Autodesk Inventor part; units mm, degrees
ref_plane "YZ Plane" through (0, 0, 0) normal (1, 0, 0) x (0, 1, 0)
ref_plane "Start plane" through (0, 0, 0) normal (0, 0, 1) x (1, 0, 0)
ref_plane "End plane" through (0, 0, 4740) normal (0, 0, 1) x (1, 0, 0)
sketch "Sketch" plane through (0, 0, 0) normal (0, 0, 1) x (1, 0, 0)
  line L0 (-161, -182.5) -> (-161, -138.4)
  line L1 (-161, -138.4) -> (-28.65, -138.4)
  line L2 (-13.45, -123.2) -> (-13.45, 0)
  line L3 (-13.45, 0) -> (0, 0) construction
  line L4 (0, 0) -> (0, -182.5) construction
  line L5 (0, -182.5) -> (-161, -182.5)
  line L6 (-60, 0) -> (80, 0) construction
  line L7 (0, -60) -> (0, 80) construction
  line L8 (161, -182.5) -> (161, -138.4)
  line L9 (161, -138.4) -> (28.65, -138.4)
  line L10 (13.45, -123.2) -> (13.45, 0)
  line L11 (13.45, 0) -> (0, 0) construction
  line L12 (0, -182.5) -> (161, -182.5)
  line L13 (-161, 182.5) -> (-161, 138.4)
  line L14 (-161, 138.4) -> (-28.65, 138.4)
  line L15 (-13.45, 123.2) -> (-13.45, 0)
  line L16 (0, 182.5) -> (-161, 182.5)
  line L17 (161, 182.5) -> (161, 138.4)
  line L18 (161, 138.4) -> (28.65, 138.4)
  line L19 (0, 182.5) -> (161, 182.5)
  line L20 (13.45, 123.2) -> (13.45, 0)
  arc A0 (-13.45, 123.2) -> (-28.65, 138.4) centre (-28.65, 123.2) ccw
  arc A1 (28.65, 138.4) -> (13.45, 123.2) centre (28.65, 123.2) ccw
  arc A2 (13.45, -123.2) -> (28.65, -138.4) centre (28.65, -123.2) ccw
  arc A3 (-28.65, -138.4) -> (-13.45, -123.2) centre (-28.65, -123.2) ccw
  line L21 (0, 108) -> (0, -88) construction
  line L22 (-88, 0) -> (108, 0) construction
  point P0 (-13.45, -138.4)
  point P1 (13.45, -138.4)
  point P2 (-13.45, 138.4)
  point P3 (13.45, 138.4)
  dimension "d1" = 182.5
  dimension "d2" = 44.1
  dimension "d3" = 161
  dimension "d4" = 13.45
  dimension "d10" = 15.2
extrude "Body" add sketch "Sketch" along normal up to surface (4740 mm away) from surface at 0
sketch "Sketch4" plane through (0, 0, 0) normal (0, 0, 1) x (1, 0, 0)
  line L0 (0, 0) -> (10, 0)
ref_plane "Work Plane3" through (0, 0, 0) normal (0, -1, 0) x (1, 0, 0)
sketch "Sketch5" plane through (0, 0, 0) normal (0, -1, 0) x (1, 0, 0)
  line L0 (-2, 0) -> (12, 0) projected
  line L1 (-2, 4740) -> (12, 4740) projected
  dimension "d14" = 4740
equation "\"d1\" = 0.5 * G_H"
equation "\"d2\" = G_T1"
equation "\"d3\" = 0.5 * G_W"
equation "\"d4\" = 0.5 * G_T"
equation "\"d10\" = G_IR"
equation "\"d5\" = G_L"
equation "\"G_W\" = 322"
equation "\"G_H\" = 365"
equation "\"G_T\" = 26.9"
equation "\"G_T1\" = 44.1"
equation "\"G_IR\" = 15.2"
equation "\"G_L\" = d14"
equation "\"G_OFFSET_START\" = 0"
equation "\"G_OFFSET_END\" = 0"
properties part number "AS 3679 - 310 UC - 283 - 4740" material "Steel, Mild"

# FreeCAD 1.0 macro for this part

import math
import FreeCAD as App
import Part
import Sketcher

V = App.Vector

doc = App.newDocument("Part")
params = doc.addObject("Spreadsheet::Sheet", "Params")
for row, (alias, value) in enumerate([
    ("sketch1_radius", "15.2 mm"),
    ("sketch1_height", "44.1 mm"),
    ("pad1_length", "4740 mm"),
], start=1):
    params.set(f"A{row}", alias)
    params.set(f"B{row}", "=" + value)
    params.setAlias(f"B{row}", alias)

body = doc.addObject("PartDesign::Body", "Body")

# Sketch on XY plane
sketch1 = body.newObject("Sketcher::SketchObject", "Sketch")
sketch1.AttachmentSupport = (doc.getObject("XY_Plane"), [""])
sketch1.MapMode = "FlatFace"
sketch1.addGeometry(Part.LineSegment(V(-161, -138, 0), V(-161, -182, 0)), False)
sketch1.addGeometry(Part.LineSegment(V(-161, -182, 0), V(161, -182, 0)), False)
sketch1.addGeometry(Part.LineSegment(V(161, -182, 0), V(161, -138, 0)), False)
sketch1.addGeometry(Part.LineSegment(V(161, -138, 0), V(29, -138, 0)), False)
sketch1.addGeometry(Part.ArcOfCircle(Part.Circle(V(29, -123, 0), V(0, 0, 1), 15), math.radians(180), math.radians(270)), False)
sketch1.addGeometry(Part.LineSegment(V(13, -123, 0), V(13, 123, 0)), False)
sketch1.addGeometry(Part.ArcOfCircle(Part.Circle(V(29, 123, 0), V(0, 0, 1), 15), math.radians(90), math.radians(180)), False)
sketch1.addGeometry(Part.LineSegment(V(29, 138, 0), V(161, 138, 0)), False)
sketch1.addGeometry(Part.LineSegment(V(161, 138, 0), V(161, 182, 0)), False)
sketch1.addGeometry(Part.LineSegment(V(161, 182, 0), V(-161, 182, 0)), False)
sketch1.addGeometry(Part.LineSegment(V(-161, 182, 0), V(-161, 138, 0)), False)
sketch1.addGeometry(Part.LineSegment(V(-161, 138, 0), V(-29, 138, 0)), False)
sketch1.addGeometry(Part.ArcOfCircle(Part.Circle(V(-29, 123, 0), V(0, 0, 1), 15), math.radians(0), math.radians(90)), False)
sketch1.addGeometry(Part.LineSegment(V(-13, 123, 0), V(-13, -123, 0)), False)
sketch1.addGeometry(Part.ArcOfCircle(Part.Circle(V(-29, -123, 0), V(0, 0, 1), 15), math.radians(-90), math.radians(0)), False)
sketch1.addGeometry(Part.LineSegment(V(-29, -138, 0), V(-161, -138, 0)), False)
sketch1.addConstraint(Sketcher.Constraint("Coincident", 0, 2, 1, 1))
sketch1.addConstraint(Sketcher.Constraint("Coincident", 1, 2, 2, 1))
sketch1.addConstraint(Sketcher.Constraint("Coincident", 2, 2, 3, 1))
sketch1.addConstraint(Sketcher.Constraint("Tangent", 3, 2, 4, 2))
sketch1.addConstraint(Sketcher.Constraint("Tangent", 4, 1, 5, 1))
sketch1.addConstraint(Sketcher.Constraint("Tangent", 5, 2, 6, 2))
sketch1.addConstraint(Sketcher.Constraint("Tangent", 6, 1, 7, 1))
sketch1.addConstraint(Sketcher.Constraint("Coincident", 7, 2, 8, 1))
sketch1.addConstraint(Sketcher.Constraint("Coincident", 8, 2, 9, 1))
sketch1.addConstraint(Sketcher.Constraint("Coincident", 9, 2, 10, 1))
sketch1.addConstraint(Sketcher.Constraint("Coincident", 10, 2, 11, 1))
sketch1.addConstraint(Sketcher.Constraint("Tangent", 11, 2, 12, 2))
sketch1.addConstraint(Sketcher.Constraint("Tangent", 12, 1, 13, 1))
sketch1.addConstraint(Sketcher.Constraint("Tangent", 13, 2, 14, 2))
sketch1.addConstraint(Sketcher.Constraint("Tangent", 14, 1, 15, 1))
sketch1.addConstraint(Sketcher.Constraint("Coincident", 15, 2, 0, 1))
sketch1.addConstraint(Sketcher.Constraint("Vertical", 0))
sketch1.addConstraint(Sketcher.Constraint("Horizontal", 1))
sketch1.addConstraint(Sketcher.Constraint("Vertical", 2))
sketch1.addConstraint(Sketcher.Constraint("Horizontal", 3))
sketch1.addConstraint(Sketcher.Constraint("Vertical", 5))
sketch1.addConstraint(Sketcher.Constraint("Horizontal", 7))
sketch1.addConstraint(Sketcher.Constraint("Vertical", 8))
sketch1.addConstraint(Sketcher.Constraint("Horizontal", 9))
sketch1.addConstraint(Sketcher.Constraint("Vertical", 10))
sketch1.addConstraint(Sketcher.Constraint("Horizontal", 11))
sketch1.addConstraint(Sketcher.Constraint("Vertical", 13))
sketch1.addConstraint(Sketcher.Constraint("Horizontal", 15))
sketch1.addConstraint(Sketcher.Constraint("Equal", 4, 6))
sketch1.addConstraint(Sketcher.Constraint("Equal", 6, 12))
sketch1.addConstraint(Sketcher.Constraint("Equal", 12, 14))
sketch1.addConstraint(Sketcher.Constraint("Symmetric", 4, 3, 12, 3, -1, 1))
sketch1.addConstraint(Sketcher.Constraint("Symmetric", 0, 2, 8, 2, -1, 1))
sketch1.addConstraint(Sketcher.Constraint("Symmetric", 7, 2, 10, 2, -2))
sketch1.addConstraint(Sketcher.Constraint("Symmetric", 2, 2, 15, 2, -2))
sketch1.addConstraint(Sketcher.Constraint("Radius", 4, 15.2))
sketch1.addConstraint(Sketcher.Constraint("DistanceY", 0, 2, 0, 1, 44.1))
sketch1.addConstraint(Sketcher.Constraint("DistanceX", 0, 2, -1, 1, 161.0))
sketch1.addConstraint(Sketcher.Constraint("DistanceY", 0, 2, -1, 1, 182.5))
sketch1.addConstraint(Sketcher.Constraint("DistanceX", -1, 1, 4, 1, 13.45))
sketch1.setExpression("Constraints[35]", "Params.sketch1_radius")
sketch1.setExpression("Constraints[36]", "Params.sketch1_height")
pad1 = body.newObject("PartDesign::Pad", "Pad")
pad1.Profile = sketch1
pad1.setExpression("Length", "Params.pad1_length")

doc.recompute()
